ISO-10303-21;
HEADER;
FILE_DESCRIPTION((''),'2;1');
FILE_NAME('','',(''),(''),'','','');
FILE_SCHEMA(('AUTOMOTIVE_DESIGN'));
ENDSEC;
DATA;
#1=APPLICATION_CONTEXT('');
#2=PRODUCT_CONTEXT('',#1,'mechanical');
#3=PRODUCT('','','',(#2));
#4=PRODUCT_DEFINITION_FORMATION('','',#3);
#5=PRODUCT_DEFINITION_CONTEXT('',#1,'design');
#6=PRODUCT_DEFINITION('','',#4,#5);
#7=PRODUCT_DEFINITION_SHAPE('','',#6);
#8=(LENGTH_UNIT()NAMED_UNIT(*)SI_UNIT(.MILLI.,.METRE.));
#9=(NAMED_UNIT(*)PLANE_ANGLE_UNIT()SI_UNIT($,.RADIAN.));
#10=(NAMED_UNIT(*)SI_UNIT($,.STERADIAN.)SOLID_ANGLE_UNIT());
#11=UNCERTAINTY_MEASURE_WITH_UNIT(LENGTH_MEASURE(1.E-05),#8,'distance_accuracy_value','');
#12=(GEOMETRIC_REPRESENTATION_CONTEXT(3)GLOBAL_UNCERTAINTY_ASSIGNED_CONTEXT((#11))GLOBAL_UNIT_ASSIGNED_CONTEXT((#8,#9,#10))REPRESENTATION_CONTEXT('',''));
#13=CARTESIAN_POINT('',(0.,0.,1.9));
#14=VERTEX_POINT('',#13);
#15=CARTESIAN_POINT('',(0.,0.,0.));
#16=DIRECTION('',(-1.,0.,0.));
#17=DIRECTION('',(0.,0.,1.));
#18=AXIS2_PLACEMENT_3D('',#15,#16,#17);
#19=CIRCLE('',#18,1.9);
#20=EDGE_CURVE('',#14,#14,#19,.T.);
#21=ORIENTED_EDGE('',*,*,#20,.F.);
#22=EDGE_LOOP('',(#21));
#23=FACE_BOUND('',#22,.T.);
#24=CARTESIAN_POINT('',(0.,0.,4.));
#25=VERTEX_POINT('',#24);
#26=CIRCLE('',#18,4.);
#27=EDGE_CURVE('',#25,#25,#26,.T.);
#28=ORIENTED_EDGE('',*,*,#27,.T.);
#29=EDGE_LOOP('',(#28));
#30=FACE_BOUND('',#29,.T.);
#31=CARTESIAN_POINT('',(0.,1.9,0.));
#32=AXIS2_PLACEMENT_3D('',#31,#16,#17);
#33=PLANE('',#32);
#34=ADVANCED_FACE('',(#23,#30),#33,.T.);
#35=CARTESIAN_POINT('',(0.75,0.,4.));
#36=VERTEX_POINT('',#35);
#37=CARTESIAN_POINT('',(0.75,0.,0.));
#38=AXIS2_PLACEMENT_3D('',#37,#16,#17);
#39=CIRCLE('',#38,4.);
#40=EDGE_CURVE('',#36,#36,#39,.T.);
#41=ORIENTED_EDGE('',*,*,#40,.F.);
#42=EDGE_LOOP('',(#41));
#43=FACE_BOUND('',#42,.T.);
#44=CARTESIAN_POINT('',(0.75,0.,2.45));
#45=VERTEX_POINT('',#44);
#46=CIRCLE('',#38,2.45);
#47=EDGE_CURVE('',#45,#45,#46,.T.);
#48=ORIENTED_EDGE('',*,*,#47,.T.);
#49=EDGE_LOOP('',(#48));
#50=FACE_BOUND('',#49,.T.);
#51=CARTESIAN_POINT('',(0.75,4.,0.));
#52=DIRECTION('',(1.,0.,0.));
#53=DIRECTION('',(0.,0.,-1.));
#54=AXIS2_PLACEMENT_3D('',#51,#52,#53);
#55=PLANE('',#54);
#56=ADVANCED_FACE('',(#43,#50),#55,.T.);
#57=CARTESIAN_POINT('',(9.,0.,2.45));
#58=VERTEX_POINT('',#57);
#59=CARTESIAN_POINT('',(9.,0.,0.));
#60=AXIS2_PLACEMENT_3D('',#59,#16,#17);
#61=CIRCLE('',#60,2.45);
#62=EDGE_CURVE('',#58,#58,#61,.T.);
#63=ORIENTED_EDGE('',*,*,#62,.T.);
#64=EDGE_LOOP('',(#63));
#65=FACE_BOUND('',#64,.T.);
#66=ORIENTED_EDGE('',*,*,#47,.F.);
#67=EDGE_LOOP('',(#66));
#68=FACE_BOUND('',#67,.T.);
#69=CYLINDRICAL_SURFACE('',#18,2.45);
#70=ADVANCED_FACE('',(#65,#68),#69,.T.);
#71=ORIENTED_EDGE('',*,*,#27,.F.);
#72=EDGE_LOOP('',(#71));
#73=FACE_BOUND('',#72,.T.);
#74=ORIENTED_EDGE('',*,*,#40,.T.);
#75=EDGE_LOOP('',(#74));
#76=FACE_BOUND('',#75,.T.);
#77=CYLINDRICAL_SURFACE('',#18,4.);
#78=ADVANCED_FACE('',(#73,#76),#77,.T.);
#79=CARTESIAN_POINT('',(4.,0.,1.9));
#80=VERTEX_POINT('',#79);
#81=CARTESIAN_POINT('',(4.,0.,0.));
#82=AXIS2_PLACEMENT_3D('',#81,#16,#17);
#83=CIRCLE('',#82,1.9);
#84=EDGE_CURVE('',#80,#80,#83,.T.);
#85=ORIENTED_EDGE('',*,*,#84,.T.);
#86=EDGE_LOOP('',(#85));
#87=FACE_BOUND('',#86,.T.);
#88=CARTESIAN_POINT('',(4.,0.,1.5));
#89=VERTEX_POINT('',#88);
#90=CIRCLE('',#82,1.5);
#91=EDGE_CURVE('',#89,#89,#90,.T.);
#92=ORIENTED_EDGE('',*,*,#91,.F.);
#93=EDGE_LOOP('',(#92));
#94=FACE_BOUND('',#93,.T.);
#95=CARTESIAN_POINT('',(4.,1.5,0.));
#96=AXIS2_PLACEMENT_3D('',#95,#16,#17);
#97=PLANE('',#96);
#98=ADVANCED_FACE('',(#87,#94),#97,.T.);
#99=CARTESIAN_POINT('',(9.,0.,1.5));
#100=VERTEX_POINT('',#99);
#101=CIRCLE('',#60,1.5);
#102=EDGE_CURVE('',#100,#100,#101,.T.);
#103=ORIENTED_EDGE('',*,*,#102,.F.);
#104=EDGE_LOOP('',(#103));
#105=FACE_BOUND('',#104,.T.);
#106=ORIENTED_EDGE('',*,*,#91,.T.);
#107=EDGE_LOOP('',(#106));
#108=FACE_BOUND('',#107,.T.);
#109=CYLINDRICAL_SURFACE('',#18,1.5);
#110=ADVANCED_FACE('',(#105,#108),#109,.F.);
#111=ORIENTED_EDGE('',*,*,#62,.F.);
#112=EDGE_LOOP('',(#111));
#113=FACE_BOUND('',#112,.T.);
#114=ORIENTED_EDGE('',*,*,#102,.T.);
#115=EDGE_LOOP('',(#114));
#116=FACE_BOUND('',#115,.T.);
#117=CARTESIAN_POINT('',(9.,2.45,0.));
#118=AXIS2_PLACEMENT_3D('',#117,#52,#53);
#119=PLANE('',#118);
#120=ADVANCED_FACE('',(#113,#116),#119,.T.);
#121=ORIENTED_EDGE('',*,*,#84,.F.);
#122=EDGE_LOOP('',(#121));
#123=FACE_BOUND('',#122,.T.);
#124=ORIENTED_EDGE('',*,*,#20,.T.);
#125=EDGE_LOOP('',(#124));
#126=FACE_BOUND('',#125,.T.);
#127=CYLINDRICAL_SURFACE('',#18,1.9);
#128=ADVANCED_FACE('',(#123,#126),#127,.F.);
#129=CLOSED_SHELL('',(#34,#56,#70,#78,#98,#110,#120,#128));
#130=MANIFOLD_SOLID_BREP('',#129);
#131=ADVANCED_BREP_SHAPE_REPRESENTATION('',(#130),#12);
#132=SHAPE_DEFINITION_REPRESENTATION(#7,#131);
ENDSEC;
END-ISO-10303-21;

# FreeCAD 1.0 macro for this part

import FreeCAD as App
import Part
import Sketcher

V = App.Vector
Q = App.Units.Quantity

doc = App.newDocument("Part")
body = doc.addObject("PartDesign::Body", "Body")

sketch1 = body.newObject("Sketcher::SketchObject", "Sketch")
sketch1.AttachmentSupport = (doc.getObject("XY_Plane"), [""])
sketch1.MapMode = "FlatFace"
sketch1.addGeometry([
    Part.LineSegment(V(0, 4, 0), V(0, 1.9, 0)),
    Part.LineSegment(V(0, 1.9, 0), V(4, 1.9, 0)),
    Part.LineSegment(V(4, 1.9, 0), V(4, 1.5, 0)),
    Part.LineSegment(V(4, 1.5, 0), V(9, 1.5, 0)),
    Part.LineSegment(V(9, 1.5, 0), V(9, 2.45, 0)),
    Part.LineSegment(V(9, 2.45, 0), V(0.75, 2.45, 0)),
    Part.LineSegment(V(0.75, 2.45, 0), V(0.75, 4, 0)),
    Part.LineSegment(V(0.75, 4, 0), V(0, 4, 0)),
], False)
sketch1.addConstraint([
    Sketcher.Constraint("Coincident", 0, 2, 1, 1),
    Sketcher.Constraint("Coincident", 1, 2, 2, 1),
    Sketcher.Constraint("Coincident", 2, 2, 3, 1),
    Sketcher.Constraint("Coincident", 3, 2, 4, 1),
    Sketcher.Constraint("Coincident", 4, 2, 5, 1),
    Sketcher.Constraint("Coincident", 5, 2, 6, 1),
    Sketcher.Constraint("Coincident", 6, 2, 7, 1),
    Sketcher.Constraint("Coincident", 7, 2, 0, 1),
    Sketcher.Constraint("Vertical", 0),
    Sketcher.Constraint("Horizontal", 1),
    Sketcher.Constraint("Vertical", 2),
    Sketcher.Constraint("Horizontal", 3),
    Sketcher.Constraint("Vertical", 4),
    Sketcher.Constraint("Horizontal", 5),
    Sketcher.Constraint("Vertical", 6),
    Sketcher.Constraint("Horizontal", 7),
    Sketcher.Constraint("PointOnObject", 0, 2, -2),
    Sketcher.Constraint("DistanceX", 1, 1, 1, 2, Q("4 mm")),
    Sketcher.Constraint("DistanceX", 3, 1, 3, 2, Q("5 mm")),
    Sketcher.Constraint("DistanceY", 0, 2, 0, 1, Q("2.1 mm")),
    Sketcher.Constraint("DistanceY", 2, 2, 2, 1, Q("0.4 mm")),
    Sketcher.Constraint("DistanceY", -1, 1, 6, 2, Q("4 mm")),
    Sketcher.Constraint("DistanceX", 5, 2, 5, 1, Q("8.25 mm")),
    Sketcher.Constraint("DistanceY", 4, 1, 4, 2, Q("0.95 mm")),
])
revolution = body.newObject("PartDesign::Revolution", "Revolution")
revolution.Profile = sketch1
revolution.ReferenceAxis = (sketch1, ["H_Axis"])
revolution.Angle = 360

doc.recompute()
